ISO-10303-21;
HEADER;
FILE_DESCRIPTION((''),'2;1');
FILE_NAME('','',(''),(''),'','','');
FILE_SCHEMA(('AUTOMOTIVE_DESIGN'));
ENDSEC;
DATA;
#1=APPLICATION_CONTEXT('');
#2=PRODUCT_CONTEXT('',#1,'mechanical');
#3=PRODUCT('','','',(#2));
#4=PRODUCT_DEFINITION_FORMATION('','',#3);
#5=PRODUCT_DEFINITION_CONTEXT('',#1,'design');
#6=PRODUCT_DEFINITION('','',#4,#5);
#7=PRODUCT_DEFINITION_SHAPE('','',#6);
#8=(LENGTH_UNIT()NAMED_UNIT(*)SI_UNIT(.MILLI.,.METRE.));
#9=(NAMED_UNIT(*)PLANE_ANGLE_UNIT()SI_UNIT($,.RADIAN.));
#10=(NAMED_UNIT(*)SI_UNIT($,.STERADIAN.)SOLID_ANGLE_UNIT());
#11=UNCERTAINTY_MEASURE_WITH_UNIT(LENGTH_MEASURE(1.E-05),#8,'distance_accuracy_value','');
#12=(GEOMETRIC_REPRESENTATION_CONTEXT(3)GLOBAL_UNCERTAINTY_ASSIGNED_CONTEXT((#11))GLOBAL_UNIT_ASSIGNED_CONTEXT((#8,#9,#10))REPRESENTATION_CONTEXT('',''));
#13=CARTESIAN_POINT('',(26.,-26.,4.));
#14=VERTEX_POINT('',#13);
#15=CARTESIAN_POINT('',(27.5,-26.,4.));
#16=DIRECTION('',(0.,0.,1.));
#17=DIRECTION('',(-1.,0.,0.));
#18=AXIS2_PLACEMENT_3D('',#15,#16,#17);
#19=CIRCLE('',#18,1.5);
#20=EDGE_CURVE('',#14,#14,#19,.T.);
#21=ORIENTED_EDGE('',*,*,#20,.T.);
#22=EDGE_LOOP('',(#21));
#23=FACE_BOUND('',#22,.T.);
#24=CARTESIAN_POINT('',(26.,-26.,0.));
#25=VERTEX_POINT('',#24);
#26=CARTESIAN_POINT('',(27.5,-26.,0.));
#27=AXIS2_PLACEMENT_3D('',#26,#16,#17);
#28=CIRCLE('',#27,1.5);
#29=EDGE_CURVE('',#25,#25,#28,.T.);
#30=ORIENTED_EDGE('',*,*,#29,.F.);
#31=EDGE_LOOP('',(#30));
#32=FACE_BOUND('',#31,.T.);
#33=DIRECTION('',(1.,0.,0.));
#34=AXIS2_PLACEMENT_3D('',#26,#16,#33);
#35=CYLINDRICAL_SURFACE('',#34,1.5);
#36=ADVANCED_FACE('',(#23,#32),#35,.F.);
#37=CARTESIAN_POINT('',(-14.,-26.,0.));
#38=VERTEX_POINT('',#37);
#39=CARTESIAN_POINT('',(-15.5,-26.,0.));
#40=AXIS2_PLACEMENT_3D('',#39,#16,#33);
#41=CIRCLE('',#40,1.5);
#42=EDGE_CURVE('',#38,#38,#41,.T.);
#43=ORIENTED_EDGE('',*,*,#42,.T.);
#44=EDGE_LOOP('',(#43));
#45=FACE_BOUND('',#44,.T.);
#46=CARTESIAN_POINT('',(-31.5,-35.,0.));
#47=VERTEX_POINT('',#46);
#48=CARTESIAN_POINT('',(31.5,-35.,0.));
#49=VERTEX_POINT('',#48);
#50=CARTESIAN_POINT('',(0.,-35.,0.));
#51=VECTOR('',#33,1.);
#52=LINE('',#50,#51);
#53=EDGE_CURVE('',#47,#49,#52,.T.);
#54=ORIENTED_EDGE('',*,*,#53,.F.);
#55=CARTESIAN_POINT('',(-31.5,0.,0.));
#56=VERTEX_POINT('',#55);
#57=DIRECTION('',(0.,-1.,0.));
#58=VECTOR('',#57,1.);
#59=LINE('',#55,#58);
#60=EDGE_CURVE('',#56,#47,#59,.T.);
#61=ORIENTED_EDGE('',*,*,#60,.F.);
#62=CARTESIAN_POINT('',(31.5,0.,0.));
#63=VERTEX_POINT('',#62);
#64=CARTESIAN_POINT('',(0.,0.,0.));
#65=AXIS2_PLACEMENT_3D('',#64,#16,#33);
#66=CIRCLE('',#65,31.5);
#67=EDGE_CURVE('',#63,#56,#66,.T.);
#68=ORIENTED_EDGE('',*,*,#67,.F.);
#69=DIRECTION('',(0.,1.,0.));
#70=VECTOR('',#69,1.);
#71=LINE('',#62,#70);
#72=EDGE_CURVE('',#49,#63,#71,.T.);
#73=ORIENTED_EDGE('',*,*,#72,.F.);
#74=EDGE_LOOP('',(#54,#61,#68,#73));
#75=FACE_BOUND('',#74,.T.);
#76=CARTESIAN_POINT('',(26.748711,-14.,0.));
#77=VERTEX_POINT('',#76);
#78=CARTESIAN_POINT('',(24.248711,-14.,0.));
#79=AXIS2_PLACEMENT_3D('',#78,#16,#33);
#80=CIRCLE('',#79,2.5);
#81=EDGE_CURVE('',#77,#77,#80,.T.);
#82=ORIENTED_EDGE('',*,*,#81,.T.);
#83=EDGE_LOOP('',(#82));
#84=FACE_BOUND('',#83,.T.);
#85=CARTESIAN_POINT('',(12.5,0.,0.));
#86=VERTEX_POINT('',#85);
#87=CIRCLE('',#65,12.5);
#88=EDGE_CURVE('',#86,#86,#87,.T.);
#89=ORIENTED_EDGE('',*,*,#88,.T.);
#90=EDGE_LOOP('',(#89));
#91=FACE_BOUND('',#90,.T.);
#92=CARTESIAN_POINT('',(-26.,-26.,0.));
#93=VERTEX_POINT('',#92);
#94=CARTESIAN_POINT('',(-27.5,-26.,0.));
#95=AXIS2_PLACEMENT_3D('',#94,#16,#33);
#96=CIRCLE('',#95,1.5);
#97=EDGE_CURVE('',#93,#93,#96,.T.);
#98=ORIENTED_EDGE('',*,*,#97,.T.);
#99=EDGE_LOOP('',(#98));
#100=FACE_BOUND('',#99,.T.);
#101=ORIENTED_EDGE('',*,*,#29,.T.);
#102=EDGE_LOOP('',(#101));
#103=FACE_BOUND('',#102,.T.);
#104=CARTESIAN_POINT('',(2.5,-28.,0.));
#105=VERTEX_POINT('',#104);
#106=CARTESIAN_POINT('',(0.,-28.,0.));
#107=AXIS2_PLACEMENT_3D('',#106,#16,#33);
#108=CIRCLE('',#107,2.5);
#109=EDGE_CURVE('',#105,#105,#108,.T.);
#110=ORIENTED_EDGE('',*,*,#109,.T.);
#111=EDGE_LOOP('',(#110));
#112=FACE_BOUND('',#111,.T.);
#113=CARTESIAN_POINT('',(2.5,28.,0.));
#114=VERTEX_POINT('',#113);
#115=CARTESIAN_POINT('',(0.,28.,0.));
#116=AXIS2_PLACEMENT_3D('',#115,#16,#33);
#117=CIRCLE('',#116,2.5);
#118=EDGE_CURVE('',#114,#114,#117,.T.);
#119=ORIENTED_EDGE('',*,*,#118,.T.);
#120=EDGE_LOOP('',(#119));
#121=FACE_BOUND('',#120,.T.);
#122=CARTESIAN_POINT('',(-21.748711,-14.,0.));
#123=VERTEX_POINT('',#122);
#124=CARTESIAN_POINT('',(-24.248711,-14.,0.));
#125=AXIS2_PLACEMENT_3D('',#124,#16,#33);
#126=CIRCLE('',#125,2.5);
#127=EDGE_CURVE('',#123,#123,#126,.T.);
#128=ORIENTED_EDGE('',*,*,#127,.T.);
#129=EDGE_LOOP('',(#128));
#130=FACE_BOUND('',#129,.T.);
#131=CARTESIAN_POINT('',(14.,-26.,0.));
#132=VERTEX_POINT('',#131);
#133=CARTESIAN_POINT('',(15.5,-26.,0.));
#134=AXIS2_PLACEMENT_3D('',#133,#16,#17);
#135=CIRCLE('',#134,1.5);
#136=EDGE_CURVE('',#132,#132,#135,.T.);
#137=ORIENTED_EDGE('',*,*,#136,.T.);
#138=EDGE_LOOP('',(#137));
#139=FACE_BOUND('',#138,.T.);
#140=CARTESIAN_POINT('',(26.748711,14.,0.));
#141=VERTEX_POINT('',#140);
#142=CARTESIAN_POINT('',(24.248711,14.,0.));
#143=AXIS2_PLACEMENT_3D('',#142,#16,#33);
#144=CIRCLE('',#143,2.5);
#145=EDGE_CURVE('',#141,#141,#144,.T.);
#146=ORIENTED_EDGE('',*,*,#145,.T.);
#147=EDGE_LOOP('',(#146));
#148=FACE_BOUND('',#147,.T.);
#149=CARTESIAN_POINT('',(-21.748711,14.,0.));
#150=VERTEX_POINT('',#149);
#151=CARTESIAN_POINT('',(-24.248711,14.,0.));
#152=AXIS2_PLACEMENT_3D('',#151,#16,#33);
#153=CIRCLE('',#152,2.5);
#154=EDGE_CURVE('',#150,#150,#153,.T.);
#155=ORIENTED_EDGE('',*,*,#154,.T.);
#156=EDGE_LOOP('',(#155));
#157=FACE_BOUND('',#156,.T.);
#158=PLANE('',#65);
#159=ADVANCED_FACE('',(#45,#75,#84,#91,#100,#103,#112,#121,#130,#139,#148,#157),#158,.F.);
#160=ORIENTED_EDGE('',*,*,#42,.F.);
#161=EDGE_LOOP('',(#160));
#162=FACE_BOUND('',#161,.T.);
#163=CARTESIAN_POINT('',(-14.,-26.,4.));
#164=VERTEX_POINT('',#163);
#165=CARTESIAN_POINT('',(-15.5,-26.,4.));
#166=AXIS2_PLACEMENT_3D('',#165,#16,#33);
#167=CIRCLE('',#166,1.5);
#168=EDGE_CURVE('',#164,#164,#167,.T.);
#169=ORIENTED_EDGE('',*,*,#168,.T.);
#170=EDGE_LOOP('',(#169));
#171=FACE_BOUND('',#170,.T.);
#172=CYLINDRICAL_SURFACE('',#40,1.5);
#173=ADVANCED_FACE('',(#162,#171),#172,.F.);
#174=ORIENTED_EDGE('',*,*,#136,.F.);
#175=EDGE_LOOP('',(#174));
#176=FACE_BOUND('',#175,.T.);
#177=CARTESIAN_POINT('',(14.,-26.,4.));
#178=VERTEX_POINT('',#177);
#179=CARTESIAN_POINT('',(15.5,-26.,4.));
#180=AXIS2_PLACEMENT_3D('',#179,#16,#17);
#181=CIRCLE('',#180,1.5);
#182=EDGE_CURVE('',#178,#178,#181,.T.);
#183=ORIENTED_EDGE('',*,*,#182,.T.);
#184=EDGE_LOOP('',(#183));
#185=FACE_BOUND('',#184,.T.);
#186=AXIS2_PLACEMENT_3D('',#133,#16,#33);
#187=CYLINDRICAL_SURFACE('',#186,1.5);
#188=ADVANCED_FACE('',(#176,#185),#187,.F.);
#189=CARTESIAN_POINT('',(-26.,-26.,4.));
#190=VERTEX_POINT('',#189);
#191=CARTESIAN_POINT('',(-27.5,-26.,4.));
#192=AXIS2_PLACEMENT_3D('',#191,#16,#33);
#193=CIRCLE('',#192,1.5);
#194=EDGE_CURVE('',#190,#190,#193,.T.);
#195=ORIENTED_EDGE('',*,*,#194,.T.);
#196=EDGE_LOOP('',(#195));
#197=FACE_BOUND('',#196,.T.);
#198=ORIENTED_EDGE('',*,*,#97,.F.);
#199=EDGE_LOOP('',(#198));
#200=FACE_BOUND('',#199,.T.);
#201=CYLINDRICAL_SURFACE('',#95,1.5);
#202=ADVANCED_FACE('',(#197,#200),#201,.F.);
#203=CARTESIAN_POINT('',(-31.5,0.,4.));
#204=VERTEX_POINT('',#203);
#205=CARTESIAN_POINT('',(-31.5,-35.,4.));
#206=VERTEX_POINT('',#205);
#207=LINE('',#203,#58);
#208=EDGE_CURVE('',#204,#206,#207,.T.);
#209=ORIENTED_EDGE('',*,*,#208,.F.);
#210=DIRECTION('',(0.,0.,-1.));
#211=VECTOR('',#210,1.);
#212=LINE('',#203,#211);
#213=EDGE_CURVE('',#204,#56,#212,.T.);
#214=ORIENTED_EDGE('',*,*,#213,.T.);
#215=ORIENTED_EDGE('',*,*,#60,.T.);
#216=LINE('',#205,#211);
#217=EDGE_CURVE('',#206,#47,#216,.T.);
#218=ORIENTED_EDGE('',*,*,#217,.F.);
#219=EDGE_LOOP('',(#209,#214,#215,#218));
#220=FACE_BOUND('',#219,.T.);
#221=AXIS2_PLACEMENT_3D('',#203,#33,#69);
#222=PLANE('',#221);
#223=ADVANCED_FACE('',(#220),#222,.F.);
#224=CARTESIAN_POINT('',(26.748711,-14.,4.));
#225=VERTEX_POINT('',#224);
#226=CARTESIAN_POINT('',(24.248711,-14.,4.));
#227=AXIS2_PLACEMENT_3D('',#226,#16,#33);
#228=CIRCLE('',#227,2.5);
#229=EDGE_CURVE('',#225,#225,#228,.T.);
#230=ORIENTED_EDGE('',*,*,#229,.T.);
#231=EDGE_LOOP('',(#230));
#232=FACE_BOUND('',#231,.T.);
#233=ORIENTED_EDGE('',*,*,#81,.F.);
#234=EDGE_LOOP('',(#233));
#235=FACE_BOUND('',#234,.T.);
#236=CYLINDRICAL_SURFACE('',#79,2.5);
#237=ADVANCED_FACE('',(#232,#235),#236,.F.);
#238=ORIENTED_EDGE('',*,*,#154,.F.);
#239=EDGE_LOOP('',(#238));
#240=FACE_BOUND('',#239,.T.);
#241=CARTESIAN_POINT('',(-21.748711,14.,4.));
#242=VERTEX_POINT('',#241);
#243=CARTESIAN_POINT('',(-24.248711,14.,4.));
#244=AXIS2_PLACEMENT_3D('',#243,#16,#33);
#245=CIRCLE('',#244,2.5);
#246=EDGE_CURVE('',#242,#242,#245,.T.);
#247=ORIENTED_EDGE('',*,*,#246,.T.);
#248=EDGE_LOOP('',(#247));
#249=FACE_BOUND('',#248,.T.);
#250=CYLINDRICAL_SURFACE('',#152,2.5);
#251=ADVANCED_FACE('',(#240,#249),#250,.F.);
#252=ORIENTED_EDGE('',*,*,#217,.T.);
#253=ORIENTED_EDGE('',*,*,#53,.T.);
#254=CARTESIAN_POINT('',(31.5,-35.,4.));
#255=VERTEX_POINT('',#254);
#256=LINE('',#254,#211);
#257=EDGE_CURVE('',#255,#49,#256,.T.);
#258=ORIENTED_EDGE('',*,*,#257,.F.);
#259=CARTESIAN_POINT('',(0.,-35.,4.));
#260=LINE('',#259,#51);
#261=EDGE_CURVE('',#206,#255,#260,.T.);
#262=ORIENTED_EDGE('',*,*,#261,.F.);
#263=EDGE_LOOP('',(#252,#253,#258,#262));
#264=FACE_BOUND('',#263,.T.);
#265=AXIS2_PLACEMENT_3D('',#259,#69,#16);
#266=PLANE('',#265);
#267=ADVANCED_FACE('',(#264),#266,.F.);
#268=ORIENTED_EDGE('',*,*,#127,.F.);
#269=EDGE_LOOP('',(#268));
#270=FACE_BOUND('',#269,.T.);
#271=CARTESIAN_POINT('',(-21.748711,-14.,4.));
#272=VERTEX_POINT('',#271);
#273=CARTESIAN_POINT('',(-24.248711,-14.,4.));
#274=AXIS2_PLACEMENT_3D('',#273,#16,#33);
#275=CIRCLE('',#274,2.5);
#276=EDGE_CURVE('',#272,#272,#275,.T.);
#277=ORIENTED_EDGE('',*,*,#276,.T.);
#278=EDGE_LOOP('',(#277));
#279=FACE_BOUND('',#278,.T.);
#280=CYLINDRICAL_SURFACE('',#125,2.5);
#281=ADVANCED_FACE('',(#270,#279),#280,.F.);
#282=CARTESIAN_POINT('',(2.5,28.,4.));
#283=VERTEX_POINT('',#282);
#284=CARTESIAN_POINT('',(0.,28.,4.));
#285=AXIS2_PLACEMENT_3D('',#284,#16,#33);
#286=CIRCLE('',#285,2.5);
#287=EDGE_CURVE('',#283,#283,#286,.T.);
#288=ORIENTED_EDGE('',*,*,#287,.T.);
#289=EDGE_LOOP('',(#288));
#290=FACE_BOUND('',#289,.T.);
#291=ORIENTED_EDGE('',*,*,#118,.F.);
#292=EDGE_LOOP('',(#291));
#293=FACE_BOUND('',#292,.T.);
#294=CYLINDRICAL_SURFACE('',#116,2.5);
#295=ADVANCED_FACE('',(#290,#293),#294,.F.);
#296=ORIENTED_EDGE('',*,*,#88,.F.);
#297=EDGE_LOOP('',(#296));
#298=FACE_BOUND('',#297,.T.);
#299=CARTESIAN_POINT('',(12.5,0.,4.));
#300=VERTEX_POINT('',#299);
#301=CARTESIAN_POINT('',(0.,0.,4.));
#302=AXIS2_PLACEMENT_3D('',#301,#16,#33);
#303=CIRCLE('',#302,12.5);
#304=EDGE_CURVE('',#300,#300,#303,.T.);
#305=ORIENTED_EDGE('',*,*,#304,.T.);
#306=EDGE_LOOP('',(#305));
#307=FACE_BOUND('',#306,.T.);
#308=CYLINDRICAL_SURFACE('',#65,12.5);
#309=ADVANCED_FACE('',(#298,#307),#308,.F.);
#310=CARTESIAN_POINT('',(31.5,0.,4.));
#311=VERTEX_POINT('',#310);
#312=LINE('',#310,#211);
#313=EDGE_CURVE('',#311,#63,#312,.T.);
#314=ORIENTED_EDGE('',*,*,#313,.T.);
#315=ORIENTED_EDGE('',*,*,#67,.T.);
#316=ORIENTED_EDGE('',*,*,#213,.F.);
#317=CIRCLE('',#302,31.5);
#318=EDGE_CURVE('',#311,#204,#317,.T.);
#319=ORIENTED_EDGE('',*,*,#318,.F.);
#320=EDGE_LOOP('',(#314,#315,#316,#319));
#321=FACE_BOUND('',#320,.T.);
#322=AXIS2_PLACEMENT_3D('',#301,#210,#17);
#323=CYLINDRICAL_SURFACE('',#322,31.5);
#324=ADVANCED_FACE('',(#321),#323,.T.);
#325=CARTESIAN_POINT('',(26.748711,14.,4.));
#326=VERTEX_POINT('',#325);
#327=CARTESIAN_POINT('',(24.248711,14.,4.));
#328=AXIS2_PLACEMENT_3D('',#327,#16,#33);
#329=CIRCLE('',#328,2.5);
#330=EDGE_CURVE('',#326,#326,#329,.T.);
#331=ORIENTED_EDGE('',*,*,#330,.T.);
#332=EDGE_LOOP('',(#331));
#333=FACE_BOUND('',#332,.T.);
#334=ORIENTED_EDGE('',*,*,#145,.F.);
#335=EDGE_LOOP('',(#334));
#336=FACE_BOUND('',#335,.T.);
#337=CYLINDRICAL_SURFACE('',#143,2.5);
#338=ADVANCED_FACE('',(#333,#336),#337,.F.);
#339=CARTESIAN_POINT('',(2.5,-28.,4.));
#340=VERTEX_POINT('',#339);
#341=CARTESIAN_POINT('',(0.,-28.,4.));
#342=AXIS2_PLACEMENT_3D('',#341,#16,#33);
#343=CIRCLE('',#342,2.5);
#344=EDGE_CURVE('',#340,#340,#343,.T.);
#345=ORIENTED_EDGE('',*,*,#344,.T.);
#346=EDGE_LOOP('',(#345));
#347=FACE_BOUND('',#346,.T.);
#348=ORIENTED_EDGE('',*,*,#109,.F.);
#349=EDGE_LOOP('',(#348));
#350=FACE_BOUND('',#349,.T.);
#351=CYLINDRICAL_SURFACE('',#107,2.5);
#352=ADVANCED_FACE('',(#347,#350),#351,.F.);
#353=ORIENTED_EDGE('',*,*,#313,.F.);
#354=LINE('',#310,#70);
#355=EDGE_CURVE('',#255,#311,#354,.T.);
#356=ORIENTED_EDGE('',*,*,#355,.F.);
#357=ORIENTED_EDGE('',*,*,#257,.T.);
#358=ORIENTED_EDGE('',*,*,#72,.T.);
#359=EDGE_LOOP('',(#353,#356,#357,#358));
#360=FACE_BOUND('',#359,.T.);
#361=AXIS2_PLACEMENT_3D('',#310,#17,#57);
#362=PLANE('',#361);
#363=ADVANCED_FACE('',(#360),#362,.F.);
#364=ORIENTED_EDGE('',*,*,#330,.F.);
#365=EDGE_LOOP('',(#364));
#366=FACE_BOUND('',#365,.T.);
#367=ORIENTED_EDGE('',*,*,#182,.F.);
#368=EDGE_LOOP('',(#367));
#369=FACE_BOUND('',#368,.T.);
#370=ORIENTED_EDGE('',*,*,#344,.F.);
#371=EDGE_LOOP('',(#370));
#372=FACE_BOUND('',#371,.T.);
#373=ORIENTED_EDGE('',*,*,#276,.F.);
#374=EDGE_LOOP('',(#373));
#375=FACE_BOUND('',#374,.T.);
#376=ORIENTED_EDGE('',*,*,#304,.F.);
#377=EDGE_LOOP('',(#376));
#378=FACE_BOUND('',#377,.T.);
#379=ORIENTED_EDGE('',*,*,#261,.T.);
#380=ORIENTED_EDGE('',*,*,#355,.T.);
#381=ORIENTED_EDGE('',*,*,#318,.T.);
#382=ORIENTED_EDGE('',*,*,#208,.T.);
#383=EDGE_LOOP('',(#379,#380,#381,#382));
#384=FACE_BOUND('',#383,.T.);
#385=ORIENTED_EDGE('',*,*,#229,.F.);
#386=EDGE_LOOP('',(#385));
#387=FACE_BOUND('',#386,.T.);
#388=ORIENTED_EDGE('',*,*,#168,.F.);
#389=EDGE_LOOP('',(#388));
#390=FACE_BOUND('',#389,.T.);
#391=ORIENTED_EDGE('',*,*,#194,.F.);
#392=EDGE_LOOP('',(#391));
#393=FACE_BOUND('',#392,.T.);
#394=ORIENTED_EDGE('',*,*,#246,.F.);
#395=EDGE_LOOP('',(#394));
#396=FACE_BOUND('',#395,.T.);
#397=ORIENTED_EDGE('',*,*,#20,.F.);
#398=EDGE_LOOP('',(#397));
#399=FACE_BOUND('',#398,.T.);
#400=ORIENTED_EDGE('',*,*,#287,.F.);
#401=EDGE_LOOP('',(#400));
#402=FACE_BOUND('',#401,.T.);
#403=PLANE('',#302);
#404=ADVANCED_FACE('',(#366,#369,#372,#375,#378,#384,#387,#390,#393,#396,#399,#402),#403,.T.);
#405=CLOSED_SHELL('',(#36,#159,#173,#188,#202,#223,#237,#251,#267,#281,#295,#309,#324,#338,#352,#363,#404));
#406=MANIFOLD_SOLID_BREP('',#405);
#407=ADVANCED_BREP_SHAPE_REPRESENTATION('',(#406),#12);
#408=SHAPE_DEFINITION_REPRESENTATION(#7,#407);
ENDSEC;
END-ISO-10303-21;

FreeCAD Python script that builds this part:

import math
import FreeCAD as App
import Part
import Sketcher

V = App.Vector
Q = App.Units.Quantity

doc = App.newDocument("Part")
body = doc.addObject("PartDesign::Body", "Body")

sketch1 = body.newObject("Sketcher::SketchObject", "Sketch")
sketch1.AttachmentSupport = (doc.getObject("XY_Plane"), [""])
sketch1.MapMode = "FlatFace"
sketch1.addGeometry(Part.ArcOfCircle(Part.Circle(V(0, 0, 0), V(0, 0, 1), 32), math.radians(0), math.radians(180)), False)
sketch1.addGeometry(Part.LineSegment(V(-32, 0, 0), V(-32, -35, 0)), False)
sketch1.addGeometry(Part.LineSegment(V(-32, -35, 0), V(32, -35, 0)), False)
sketch1.addGeometry(Part.LineSegment(V(32, -35, 0), V(32, 0, 0)), False)
sketch1.addConstraint(Sketcher.Constraint("Tangent", 0, 2, 1, 1))
sketch1.addConstraint(Sketcher.Constraint("Coincident", 1, 2, 2, 1))
sketch1.addConstraint(Sketcher.Constraint("Coincident", 2, 2, 3, 1))
sketch1.addConstraint(Sketcher.Constraint("Tangent", 3, 2, 0, 1))
sketch1.addConstraint(Sketcher.Constraint("Vertical", 1))
sketch1.addConstraint(Sketcher.Constraint("Horizontal", 2))
sketch1.addConstraint(Sketcher.Constraint("Vertical", 3))
sketch1.addConstraint(Sketcher.Constraint("Coincident", 0, 3, -1, 1))
sketch1.addConstraint(Sketcher.Constraint("Radius", 0, Q("31.5 mm")))
sketch1.addConstraint(Sketcher.Constraint("DistanceY", 1, 2, 1, 1, Q("35 mm")))
pad1 = body.newObject("PartDesign::Pad", "Pad")
pad1.Profile = sketch1
pad1.Length = 4

sketch2 = body.newObject("Sketcher::SketchObject", "Sketch001")
sketch2.AttachmentSupport = (doc.getObject("XY_Plane"), [""])
sketch2.MapMode = "FlatFace"
sketch2.AttachmentOffset = App.Placement(V(0, 0, 4), App.Rotation())
sketch2.addGeometry(Part.Circle(V(0, 0, 0), V(0, 0, 1), 12.5), False)
sketch2.addGeometry(Part.Circle(V(0, 28, 0), V(0, 0, 1), 2.5), False)
sketch2.addGeometry(Part.Circle(V(24.2, -14, 0), V(0, 0, 1), 2.5), False)
sketch2.addGeometry(Part.Circle(V(-24.2, -14, 0), V(0, 0, 1), 2.5), False)
sketch2.addGeometry(Part.Circle(V(0, -28, 0), V(0, 0, 1), 2.5), False)
sketch2.addGeometry(Part.Circle(V(-24.2, 14, 0), V(0, 0, 1), 2.5), False)
sketch2.addGeometry(Part.Circle(V(24.2, 14, 0), V(0, 0, 1), 2.5), False)
sketch2.addConstraint(Sketcher.Constraint("Coincident", 0, 3, -1, 1))
sketch2.addConstraint(Sketcher.Constraint("Equal", 1, 2))
sketch2.addConstraint(Sketcher.Constraint("Equal", 2, 3))
sketch2.addConstraint(Sketcher.Constraint("Equal", 3, 4))
sketch2.addConstraint(Sketcher.Constraint("Equal", 4, 5))
sketch2.addConstraint(Sketcher.Constraint("Equal", 5, 6))
sketch2.addConstraint(Sketcher.Constraint("Symmetric", 1, 3, 4, 3, -1, 1))
sketch2.addConstraint(Sketcher.Constraint("Symmetric", 2, 3, 5, 3, -1, 1))
sketch2.addConstraint(Sketcher.Constraint("Symmetric", 3, 3, 6, 3, -1, 1))
sketch2.addConstraint(Sketcher.Constraint("Symmetric", 2, 3, 3, 3, -2))
sketch2.addConstraint(Sketcher.Constraint("PointOnObject", 1, 3, -2))
sketch2.addConstraint(Sketcher.Constraint("Diameter", 0, Q("25 mm")))
sketch2.addConstraint(Sketcher.Constraint("Diameter", 1, Q("5 mm")))
sketch2.addConstraint(Sketcher.Constraint("DistanceY", -1, 1, 1, 3, Q("28 mm")))
sketch2.addConstraint(Sketcher.Constraint("DistanceY", 2, 3, -1, 1, Q("14 mm")))
sketch2.addConstraint(Sketcher.Constraint("DistanceX", -1, 1, 2, 3, Q("24.248711 mm")))
pocket1 = body.newObject("PartDesign::Pocket", "Pocket")
pocket1.Profile = sketch2
pocket1.Type = "ThroughAll"

sketch3 = body.newObject("Sketcher::SketchObject", "Sketch002")
sketch3.AttachmentSupport = (doc.getObject("XY_Plane"), [""])
sketch3.MapMode = "FlatFace"
sketch3.AttachmentOffset = App.Placement(V(0, 0, 4), App.Rotation())
sketch3.addGeometry(Part.Circle(V(-27.5, -26, 0), V(0, 0, 1), 1.5), False)
sketch3.addGeometry(Part.Circle(V(-15.5, -26, 0), V(0, 0, 1), 1.5), False)
sketch3.addGeometry(Part.Circle(V(15.5, -26, 0), V(0, 0, 1), 1.5), False)
sketch3.addGeometry(Part.Circle(V(27.5, -26, 0), V(0, 0, 1), 1.5), False)
sketch3.addConstraint(Sketcher.Constraint("Equal", 0, 1))
sketch3.addConstraint(Sketcher.Constraint("Equal", 1, 2))
sketch3.addConstraint(Sketcher.Constraint("Equal", 2, 3))
sketch3.addConstraint(Sketcher.Constraint("Symmetric", 1, 3, 2, 3, -2))
sketch3.addConstraint(Sketcher.Constraint("Symmetric", 0, 3, 3, 3, -2))
sketch3.addConstraint(Sketcher.Constraint("Horizontal", 0, 3, 1, 3))
sketch3.addConstraint(Sketcher.Constraint("Diameter", 0, Q("3 mm")))
sketch3.addConstraint(Sketcher.Constraint("DistanceY", 0, 3, -1, 1, Q("26 mm")))
sketch3.addConstraint(Sketcher.Constraint("DistanceX", 0, 3, 1, 3, Q("12 mm")))
sketch3.addConstraint(Sketcher.Constraint("DistanceX", 1, 3, 2, 3, Q("31 mm")))
pocket2 = body.newObject("PartDesign::Pocket", "Pocket001")
pocket2.Profile = sketch3
pocket2.Type = "ThroughAll"

doc.recompute()
